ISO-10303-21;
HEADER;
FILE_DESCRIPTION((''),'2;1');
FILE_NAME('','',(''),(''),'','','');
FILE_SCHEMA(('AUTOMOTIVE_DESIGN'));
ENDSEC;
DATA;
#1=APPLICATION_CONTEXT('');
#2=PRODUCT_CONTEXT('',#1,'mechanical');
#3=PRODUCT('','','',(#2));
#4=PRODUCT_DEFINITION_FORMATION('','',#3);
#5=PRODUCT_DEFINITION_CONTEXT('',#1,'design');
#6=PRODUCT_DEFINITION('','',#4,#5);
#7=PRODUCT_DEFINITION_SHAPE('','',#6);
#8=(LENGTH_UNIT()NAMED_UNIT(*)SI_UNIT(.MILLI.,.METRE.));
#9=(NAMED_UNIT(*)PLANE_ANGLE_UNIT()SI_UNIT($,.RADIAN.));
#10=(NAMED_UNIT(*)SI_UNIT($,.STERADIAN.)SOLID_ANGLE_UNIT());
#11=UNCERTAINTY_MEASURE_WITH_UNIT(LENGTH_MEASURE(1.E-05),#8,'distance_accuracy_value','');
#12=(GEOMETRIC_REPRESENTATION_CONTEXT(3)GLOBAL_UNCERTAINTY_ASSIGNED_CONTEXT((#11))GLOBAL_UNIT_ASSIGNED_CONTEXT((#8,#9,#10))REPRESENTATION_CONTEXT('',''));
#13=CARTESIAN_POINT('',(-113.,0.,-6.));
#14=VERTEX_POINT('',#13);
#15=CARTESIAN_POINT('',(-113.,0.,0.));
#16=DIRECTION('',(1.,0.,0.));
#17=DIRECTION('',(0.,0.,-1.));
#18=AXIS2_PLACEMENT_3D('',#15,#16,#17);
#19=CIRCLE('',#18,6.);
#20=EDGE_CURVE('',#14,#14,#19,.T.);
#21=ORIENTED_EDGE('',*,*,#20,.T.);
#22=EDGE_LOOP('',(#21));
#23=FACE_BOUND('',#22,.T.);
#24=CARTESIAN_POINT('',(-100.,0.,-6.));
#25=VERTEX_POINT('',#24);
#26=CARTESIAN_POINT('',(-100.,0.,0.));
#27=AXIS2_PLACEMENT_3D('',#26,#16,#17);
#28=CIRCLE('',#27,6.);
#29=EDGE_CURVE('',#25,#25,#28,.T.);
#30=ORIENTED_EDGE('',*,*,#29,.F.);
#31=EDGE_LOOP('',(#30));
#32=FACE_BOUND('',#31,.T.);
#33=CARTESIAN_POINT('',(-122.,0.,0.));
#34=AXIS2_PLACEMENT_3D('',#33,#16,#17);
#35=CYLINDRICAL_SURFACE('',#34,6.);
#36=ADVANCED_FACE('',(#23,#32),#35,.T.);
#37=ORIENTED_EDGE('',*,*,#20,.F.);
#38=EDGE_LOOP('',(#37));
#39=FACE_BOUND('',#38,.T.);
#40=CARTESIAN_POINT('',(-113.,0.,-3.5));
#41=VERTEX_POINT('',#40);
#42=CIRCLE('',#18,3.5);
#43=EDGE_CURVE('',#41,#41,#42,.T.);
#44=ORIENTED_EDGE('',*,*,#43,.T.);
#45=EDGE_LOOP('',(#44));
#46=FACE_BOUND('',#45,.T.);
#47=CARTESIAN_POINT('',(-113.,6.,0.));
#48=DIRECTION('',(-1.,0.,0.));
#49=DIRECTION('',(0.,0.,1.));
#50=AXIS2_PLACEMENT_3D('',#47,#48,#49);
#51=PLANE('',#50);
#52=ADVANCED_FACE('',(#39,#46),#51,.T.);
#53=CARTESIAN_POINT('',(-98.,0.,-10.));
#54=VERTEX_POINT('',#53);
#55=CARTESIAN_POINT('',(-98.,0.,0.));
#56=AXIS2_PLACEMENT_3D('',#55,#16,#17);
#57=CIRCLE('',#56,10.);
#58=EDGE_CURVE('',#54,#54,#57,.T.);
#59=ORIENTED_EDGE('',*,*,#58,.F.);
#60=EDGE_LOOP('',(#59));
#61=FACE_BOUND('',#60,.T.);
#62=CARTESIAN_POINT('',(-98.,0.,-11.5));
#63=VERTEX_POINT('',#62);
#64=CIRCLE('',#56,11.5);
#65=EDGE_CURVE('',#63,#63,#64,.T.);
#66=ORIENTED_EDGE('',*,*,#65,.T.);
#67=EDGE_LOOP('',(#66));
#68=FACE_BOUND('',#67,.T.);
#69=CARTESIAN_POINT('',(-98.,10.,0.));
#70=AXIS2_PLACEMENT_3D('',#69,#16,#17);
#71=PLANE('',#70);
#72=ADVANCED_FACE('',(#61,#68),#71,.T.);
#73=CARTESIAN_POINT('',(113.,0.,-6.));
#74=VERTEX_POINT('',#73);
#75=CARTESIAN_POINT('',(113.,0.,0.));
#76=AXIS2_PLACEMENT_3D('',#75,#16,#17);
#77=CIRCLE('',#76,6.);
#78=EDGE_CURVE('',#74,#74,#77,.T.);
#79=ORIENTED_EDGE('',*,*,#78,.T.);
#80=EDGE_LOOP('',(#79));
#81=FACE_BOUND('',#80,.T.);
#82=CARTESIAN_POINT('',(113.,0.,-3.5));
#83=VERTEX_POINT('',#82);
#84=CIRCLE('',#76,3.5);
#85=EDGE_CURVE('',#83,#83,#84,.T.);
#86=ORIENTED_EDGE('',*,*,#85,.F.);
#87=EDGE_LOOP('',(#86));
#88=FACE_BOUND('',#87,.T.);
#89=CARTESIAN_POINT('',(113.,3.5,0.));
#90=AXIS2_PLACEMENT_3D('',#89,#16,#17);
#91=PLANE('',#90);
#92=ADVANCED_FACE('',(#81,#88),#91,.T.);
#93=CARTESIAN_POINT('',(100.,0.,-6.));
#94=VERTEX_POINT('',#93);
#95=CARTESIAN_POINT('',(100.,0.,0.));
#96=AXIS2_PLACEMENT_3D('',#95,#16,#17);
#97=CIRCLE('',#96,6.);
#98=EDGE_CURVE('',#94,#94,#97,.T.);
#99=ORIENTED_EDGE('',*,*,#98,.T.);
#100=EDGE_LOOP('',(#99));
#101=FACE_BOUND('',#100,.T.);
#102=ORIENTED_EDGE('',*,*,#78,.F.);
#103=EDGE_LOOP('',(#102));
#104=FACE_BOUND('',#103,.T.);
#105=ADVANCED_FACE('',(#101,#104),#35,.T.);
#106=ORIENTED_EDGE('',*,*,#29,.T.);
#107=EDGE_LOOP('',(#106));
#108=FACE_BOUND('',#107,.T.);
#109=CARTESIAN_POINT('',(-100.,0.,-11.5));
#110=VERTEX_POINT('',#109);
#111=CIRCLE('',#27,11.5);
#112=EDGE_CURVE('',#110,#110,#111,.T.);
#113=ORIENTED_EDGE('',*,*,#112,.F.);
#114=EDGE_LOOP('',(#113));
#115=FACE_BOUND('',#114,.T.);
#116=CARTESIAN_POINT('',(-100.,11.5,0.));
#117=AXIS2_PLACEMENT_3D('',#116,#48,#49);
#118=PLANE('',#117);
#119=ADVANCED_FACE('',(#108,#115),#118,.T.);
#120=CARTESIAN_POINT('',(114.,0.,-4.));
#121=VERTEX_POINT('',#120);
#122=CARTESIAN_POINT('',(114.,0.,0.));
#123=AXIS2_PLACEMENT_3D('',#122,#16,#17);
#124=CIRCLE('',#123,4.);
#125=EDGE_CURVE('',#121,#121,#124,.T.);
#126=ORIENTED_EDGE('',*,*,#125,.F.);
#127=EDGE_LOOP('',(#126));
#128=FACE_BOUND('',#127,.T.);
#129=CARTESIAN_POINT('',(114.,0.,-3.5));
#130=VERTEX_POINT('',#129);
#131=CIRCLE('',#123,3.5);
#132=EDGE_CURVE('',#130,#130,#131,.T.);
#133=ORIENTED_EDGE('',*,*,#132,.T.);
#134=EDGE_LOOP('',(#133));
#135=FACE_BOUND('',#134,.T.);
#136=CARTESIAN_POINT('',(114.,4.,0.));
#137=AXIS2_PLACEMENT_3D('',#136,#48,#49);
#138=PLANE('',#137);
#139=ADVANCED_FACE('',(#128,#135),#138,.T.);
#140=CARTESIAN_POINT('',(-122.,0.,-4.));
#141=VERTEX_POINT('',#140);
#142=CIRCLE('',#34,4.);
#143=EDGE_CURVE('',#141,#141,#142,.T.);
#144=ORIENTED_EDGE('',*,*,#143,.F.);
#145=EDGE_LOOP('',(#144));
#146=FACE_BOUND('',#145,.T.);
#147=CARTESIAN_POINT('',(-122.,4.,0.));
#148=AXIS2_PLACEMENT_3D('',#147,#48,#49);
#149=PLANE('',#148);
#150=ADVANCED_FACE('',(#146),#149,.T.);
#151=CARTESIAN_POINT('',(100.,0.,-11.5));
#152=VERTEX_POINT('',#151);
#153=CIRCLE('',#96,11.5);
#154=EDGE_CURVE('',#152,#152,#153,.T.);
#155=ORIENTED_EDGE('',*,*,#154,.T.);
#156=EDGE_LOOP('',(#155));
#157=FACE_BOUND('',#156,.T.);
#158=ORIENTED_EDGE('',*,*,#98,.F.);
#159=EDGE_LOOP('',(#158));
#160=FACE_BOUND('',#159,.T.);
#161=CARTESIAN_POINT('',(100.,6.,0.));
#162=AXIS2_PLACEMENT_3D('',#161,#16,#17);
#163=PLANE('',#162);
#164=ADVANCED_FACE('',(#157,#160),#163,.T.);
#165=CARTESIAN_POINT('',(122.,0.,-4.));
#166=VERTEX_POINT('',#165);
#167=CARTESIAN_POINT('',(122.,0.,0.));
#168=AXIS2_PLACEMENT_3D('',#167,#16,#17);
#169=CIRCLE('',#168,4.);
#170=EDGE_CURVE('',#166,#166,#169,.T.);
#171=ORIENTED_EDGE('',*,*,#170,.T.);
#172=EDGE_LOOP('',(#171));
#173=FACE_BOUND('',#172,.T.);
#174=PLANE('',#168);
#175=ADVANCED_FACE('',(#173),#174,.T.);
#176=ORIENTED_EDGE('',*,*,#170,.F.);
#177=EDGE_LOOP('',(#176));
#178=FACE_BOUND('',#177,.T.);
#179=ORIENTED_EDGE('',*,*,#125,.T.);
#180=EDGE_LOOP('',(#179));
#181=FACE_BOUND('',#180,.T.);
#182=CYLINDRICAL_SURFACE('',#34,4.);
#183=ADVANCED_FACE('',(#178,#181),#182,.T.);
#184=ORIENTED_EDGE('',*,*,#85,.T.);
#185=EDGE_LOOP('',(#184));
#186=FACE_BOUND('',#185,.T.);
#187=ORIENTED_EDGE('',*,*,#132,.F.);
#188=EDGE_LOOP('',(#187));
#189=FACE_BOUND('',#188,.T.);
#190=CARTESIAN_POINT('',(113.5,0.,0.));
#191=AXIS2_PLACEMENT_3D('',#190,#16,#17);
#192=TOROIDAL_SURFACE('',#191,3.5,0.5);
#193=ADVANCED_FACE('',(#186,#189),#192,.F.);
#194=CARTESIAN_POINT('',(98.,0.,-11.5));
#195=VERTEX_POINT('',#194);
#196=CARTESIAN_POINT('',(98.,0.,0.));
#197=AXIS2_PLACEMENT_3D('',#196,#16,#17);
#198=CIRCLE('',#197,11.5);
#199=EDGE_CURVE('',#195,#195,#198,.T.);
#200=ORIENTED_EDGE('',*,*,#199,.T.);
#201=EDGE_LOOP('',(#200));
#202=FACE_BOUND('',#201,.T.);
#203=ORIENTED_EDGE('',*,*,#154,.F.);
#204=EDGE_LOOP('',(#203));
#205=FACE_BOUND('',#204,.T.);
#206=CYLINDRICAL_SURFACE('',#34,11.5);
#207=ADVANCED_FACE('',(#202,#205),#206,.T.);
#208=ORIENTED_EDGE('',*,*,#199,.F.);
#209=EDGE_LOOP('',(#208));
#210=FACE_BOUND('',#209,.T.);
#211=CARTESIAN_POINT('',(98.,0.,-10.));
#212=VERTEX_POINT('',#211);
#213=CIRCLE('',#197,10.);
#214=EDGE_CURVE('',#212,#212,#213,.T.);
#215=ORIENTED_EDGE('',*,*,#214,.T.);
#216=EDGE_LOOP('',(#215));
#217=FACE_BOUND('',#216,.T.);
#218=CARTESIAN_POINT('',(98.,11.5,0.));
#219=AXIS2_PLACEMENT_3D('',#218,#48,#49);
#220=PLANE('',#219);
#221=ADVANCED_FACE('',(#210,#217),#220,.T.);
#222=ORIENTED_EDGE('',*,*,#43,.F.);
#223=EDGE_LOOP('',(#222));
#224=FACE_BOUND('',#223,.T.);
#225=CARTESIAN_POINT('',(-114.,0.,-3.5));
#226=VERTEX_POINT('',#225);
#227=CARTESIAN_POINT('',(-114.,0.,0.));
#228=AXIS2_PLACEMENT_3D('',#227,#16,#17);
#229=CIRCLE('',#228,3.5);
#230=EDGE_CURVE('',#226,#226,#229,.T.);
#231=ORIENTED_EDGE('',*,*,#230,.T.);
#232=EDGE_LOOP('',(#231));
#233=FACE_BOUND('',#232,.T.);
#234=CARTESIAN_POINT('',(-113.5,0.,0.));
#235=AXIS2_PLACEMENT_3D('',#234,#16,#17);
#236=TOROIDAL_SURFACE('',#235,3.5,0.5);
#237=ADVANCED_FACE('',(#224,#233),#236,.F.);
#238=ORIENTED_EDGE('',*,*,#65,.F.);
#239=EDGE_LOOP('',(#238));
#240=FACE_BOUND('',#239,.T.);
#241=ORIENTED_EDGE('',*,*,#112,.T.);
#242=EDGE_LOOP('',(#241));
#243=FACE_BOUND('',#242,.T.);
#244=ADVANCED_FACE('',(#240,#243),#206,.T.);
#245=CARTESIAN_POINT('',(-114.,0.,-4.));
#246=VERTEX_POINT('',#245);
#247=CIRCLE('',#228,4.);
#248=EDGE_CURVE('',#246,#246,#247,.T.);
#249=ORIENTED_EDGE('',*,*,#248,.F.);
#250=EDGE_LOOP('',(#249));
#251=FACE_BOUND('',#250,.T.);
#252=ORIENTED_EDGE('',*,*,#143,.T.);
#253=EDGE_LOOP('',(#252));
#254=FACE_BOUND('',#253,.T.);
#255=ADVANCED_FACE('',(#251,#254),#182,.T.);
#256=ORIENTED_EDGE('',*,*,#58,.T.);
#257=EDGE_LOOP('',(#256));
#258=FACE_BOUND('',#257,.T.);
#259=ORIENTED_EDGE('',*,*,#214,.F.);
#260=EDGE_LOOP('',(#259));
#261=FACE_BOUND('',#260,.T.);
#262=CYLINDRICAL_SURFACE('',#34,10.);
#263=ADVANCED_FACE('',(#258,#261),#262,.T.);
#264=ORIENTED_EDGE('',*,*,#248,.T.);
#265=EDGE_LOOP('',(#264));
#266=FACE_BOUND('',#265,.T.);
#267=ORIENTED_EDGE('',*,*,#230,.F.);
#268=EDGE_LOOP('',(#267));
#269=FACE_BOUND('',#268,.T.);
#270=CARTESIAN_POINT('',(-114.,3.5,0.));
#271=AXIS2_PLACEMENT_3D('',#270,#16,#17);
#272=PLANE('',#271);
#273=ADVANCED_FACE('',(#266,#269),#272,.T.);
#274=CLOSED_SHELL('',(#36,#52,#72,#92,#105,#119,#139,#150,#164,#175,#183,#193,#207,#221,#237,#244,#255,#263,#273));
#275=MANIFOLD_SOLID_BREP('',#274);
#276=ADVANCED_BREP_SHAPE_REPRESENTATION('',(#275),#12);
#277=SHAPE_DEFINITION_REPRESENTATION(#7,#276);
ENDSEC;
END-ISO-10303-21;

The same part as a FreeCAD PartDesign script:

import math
import FreeCAD as App
import Part
import Sketcher

V = App.Vector
Q = App.Units.Quantity

doc = App.newDocument("Part")
body = doc.addObject("PartDesign::Body", "Body")

sketch1 = body.newObject("Sketcher::SketchObject", "Sketch")
sketch1.AttachmentSupport = (doc.getObject("XY_Plane"), [""])
sketch1.MapMode = "FlatFace"
sketch1.addGeometry([
    Part.LineSegment(V(-122, 4, 0), V(-122, 0, 0)),
    Part.LineSegment(V(-122, 0, 0), V(122, 0, 0)),
    Part.LineSegment(V(122, 0, 0), V(122, 4, 0)),
    Part.LineSegment(V(122, 4, 0), V(114, 4, 0)),
    Part.LineSegment(V(114, 4, 0), V(114, 3.5, 0)),
    Part.ArcOfCircle(Part.Circle(V(113.5, 3.5, 0), V(0, 0, 1), 0.5), math.radians(180), math.radians(360)),
    Part.LineSegment(V(113, 3.5, 0), V(113, 6, 0)),
    Part.LineSegment(V(113, 6, 0), V(100, 6, 0)),
    Part.LineSegment(V(100, 6, 0), V(100, 11.5, 0)),
    Part.LineSegment(V(100, 11.5, 0), V(98, 11.5, 0)),
    Part.LineSegment(V(98, 11.5, 0), V(98, 10, 0)),
    Part.LineSegment(V(98, 10, 0), V(-98, 10, 0)),
    Part.LineSegment(V(-98, 10, 0), V(-98, 11.5, 0)),
    Part.LineSegment(V(-98, 11.5, 0), V(-100, 11.5, 0)),
    Part.LineSegment(V(-100, 11.5, 0), V(-100, 6, 0)),
    Part.LineSegment(V(-100, 6, 0), V(-113, 6, 0)),
    Part.LineSegment(V(-113, 6, 0), V(-113, 3.5, 0)),
    Part.ArcOfCircle(Part.Circle(V(-113.5, 3.5, 0), V(0, 0, 1), 0.5), math.radians(180), math.radians(360)),
    Part.LineSegment(V(-114, 3.5, 0), V(-114, 4, 0)),
    Part.LineSegment(V(-114, 4, 0), V(-122, 4, 0)),
], False)
sketch1.addConstraint([
    Sketcher.Constraint("Coincident", 0, 2, 1, 1),
    Sketcher.Constraint("Coincident", 1, 2, 2, 1),
    Sketcher.Constraint("Coincident", 2, 2, 3, 1),
    Sketcher.Constraint("Coincident", 3, 2, 4, 1),
    Sketcher.Constraint("Tangent", 4, 2, 5, 2),
    Sketcher.Constraint("Tangent", 5, 1, 6, 1),
    Sketcher.Constraint("Coincident", 6, 2, 7, 1),
    Sketcher.Constraint("Coincident", 7, 2, 8, 1),
    Sketcher.Constraint("Coincident", 8, 2, 9, 1),
    Sketcher.Constraint("Coincident", 9, 2, 10, 1),
    Sketcher.Constraint("Coincident", 10, 2, 11, 1),
    Sketcher.Constraint("Coincident", 11, 2, 12, 1),
    Sketcher.Constraint("Coincident", 12, 2, 13, 1),
    Sketcher.Constraint("Coincident", 13, 2, 14, 1),
    Sketcher.Constraint("Coincident", 14, 2, 15, 1),
    Sketcher.Constraint("Coincident", 15, 2, 16, 1),
    Sketcher.Constraint("Tangent", 16, 2, 17, 2),
    Sketcher.Constraint("Tangent", 17, 1, 18, 1),
    Sketcher.Constraint("Coincident", 18, 2, 19, 1),
    Sketcher.Constraint("Coincident", 19, 2, 0, 1),
    Sketcher.Constraint("Vertical", 0),
    Sketcher.Constraint("Horizontal", 1),
    Sketcher.Constraint("Vertical", 2),
    Sketcher.Constraint("Horizontal", 3),
    Sketcher.Constraint("Vertical", 4),
    Sketcher.Constraint("Vertical", 6),
    Sketcher.Constraint("Horizontal", 7),
    Sketcher.Constraint("Vertical", 8),
    Sketcher.Constraint("Horizontal", 9),
    Sketcher.Constraint("Vertical", 10),
    Sketcher.Constraint("Horizontal", 11),
    Sketcher.Constraint("Vertical", 12),
    Sketcher.Constraint("Horizontal", 13),
    Sketcher.Constraint("Vertical", 14),
    Sketcher.Constraint("Horizontal", 15),
    Sketcher.Constraint("Vertical", 16),
    Sketcher.Constraint("Vertical", 18),
    Sketcher.Constraint("Horizontal", 19),
    Sketcher.Constraint("Equal", 5, 17),
    Sketcher.Constraint("Symmetric", 0, 2, 1, 2, -1, 1),
    Sketcher.Constraint("Symmetric", 5, 3, 17, 3, -2),
    Sketcher.Constraint("Symmetric", 9, 2, 12, 2, -2),
    Sketcher.Constraint("Symmetric", 7, 2, 14, 2, -2),
    Sketcher.Constraint("Horizontal", 3, 2, 18, 2),
    Sketcher.Constraint("Radius", 5, Q("0.5 mm")),
    Sketcher.Constraint("DistanceX", 1, 1, 1, 2, Q("244 mm")),
    Sketcher.Constraint("DistanceX", 3, 2, 3, 1, Q("8 mm")),
    Sketcher.Constraint("DistanceX", 7, 2, 7, 1, Q("13 mm")),
    Sketcher.Constraint("DistanceX", 9, 2, 9, 1, Q("2 mm")),
    Sketcher.Constraint("DistanceY", 0, 2, 0, 1, Q("4 mm")),
    Sketcher.Constraint("DistanceY", 4, 2, 4, 1, Q("0.5 mm")),
    Sketcher.Constraint("DistanceY", 6, 1, 6, 2, Q("2.5 mm")),
    Sketcher.Constraint("DistanceY", 8, 1, 8, 2, Q("5.5 mm")),
    Sketcher.Constraint("DistanceY", 10, 2, 10, 1, Q("1.5 mm")),
])
revolution = body.newObject("PartDesign::Revolution", "Revolution")
revolution.Profile = sketch1
revolution.ReferenceAxis = (sketch1, ["H_Axis"])
revolution.Angle = 360

doc.recompute()
